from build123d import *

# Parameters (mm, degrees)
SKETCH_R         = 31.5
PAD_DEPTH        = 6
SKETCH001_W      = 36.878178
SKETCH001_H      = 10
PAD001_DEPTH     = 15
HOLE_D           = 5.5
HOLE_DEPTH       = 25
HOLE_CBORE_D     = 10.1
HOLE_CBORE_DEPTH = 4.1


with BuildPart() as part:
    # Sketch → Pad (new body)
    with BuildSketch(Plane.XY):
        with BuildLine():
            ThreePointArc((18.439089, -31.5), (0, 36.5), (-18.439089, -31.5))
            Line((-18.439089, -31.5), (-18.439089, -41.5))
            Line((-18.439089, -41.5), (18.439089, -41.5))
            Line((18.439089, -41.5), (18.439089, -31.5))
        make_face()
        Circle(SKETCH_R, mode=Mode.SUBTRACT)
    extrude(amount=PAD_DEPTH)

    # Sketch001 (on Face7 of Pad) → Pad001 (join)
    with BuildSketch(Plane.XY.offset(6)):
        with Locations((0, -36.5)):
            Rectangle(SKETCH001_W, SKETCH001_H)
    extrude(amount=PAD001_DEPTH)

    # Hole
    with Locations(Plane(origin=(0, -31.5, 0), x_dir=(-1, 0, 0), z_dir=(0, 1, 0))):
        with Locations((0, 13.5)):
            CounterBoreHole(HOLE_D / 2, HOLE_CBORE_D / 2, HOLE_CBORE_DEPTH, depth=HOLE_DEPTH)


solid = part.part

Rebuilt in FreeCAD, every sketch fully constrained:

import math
import FreeCAD as App
import Part
import Sketcher
from FreeCAD import Vector
Q = App.Units.Quantity

doc = App.newDocument("Part")
params = doc.addObject("Spreadsheet::Sheet", "Params")
for row, (alias, value) in enumerate([
    ("sketch1_diameter", "63 mm"),
    ("sketch1_radius", "36.5 mm"),
    ("sketch1_height", "10 mm"),
    ("pad1_length", "6 mm"),
    ("sketch2_height", "10 mm"),
    ("pad2_length", "15 mm"),
    ("sketch3_diameter", "5.5 mm"),
    ("hole_diameter", "5.5 mm"),
    ("hole_depth", "25 mm"),
    ("hole_cbore_diameter", "10.1 mm"),
    ("hole_cbore_depth", "4.1 mm"),
], start=1):
    params.set(f"A{row}", alias)
    params.set(f"B{row}", "=" + value)
    params.setAlias(f"B{row}", alias)

body = doc.addObject("PartDesign::Body", "Body")

# Sketch on XY plane
sketch1 = body.newObject("Sketcher::SketchObject", "Sketch")
sketch1.AttachmentSupport = (doc.getObject("XY_Plane"), [""])
sketch1.MapMode = "FlatFace"
sketch1.addGeometry([
    Part.ArcOfCircle(Part.Circle(Vector(0, 0, 0), Vector(0, 0, 1), 36.5), math.radians(-59.656664), math.radians(239.656664)),  # 0
    Part.LineSegment(Vector(-18.439089, -31.5, 0), Vector(-18.439089, -41.5, 0)),  # 1
    Part.LineSegment(Vector(-18.439089, -41.5, 0), Vector(18.439089, -41.5, 0)),  # 2
    Part.LineSegment(Vector(18.439089, -41.5, 0), Vector(18.439089, -31.5, 0)),  # 3
    Part.Circle(Vector(0, 0, 0), Vector(0, 0, 1), 31.5),  # 4
], False)
sketch1.addConstraint([
    Sketcher.Constraint("Coincident", 0, 2, 1, 1),
    Sketcher.Constraint("Coincident", 1, 2, 2, 1),
    Sketcher.Constraint("Coincident", 2, 2, 3, 1),
    Sketcher.Constraint("Coincident", 3, 2, 0, 1),
    Sketcher.Constraint("Vertical", 1),
    Sketcher.Constraint("Horizontal", 2),
    Sketcher.Constraint("Vertical", 3),
    Sketcher.Constraint("Coincident", 0, 3, -1, 1),
    Sketcher.Constraint("Coincident", 4, 3, -1, 1),
    Sketcher.Constraint("Horizontal", 0, 2, 3, 2),
    Sketcher.Constraint("Diameter", 4, Q("63 mm")),
    Sketcher.Constraint("Radius", 0, Q("36.5 mm")),
    Sketcher.Constraint("DistanceY", 1, 2, 1, 1, Q("10 mm")),
    Sketcher.Constraint("DistanceY", 0, 2, -1, 1, Q("31.5 mm")),
])
sketch1.setExpression("Constraints[10]", "Params.sketch1_diameter")
sketch1.setExpression("Constraints[11]", "Params.sketch1_radius")
sketch1.setExpression("Constraints[12]", "Params.sketch1_height")
pad1 = body.newObject("PartDesign::Pad", "Pad")
pad1.Profile = sketch1
pad1.setExpression("Length", "Params.pad1_length")

# Sketch on XY plane
sketch2 = body.newObject("Sketcher::SketchObject", "Sketch001")
sketch2.AttachmentSupport = (doc.getObject("XY_Plane"), [""])
sketch2.MapMode = "FlatFace"
sketch2.AttachmentOffset = App.Placement(Vector(0, 0, 6), App.Rotation())
sketch2.addGeometry([
    Part.LineSegment(Vector(-18.439089, -31.5, 0), Vector(-18.439089, -41.5, 0)),
    Part.LineSegment(Vector(-18.439089, -41.5, 0), Vector(18.439089, -41.5, 0)),
    Part.LineSegment(Vector(18.439089, -41.5, 0), Vector(18.439089, -31.5, 0)),
    Part.LineSegment(Vector(18.439089, -31.5, 0), Vector(-18.439089, -31.5, 0)),
], False)
sketch2.addConstraint([
    Sketcher.Constraint("Coincident", 0, 2, 1, 1),
    Sketcher.Constraint("Coincident", 1, 2, 2, 1),
    Sketcher.Constraint("Coincident", 2, 2, 3, 1),
    Sketcher.Constraint("Coincident", 3, 2, 0, 1),
    Sketcher.Constraint("Vertical", 0),
    Sketcher.Constraint("Horizontal", 1),
    Sketcher.Constraint("Vertical", 2),
    Sketcher.Constraint("Horizontal", 3),
    Sketcher.Constraint("DistanceY", 0, 2, 0, 1, Q("10 mm")),
    Sketcher.Constraint("DistanceY", 0, 2, -1, 1, Q("41.5 mm")),
    Sketcher.Constraint("DistanceX", 1, 1, 1, 2, Q("36.878178 mm")),
    Sketcher.Constraint("DistanceX", 0, 2, -1, 1, Q("18.439089 mm")),
])
sketch2.setExpression("Constraints[8]", "Params.sketch2_height")
pad2 = body.newObject("PartDesign::Pad", "Pad001")
pad2.Profile = sketch2
pad2.setExpression("Length", "Params.pad2_length")

# Sketch on XZ plane
sketch3 = body.newObject("Sketcher::SketchObject", "Sketch002")
sketch3.AttachmentSupport = (doc.getObject("XZ_Plane"), [""])
sketch3.MapMode = "FlatFace"
sketch3.AttachmentOffset = App.Placement(Vector(0, 0, 31.5), App.Rotation())
sketch3.addGeometry(Part.Circle(Vector(0, 13.5, 0), Vector(0, 0, 1), 2.75), False)
sketch3.addConstraint([
    Sketcher.Constraint("PointOnObject", 0, 3, -2),
    Sketcher.Constraint("Diameter", 0, Q("5.5 mm")),
    Sketcher.Constraint("DistanceY", -1, 1, 0, 3, Q("13.5 mm")),
])
sketch3.setExpression("Constraints[1]", "Params.sketch3_diameter")
doc.recompute()
hole = body.newObject("PartDesign::Hole", "Hole")
hole.Profile = sketch3
hole.ThreadType = "None"
hole.setExpression("Diameter", "Params.hole_diameter")
hole.DepthType = "Dimension"
hole.setExpression("Depth", "Params.hole_depth")
hole.DrillPoint = "Flat"
hole.HoleCutType = "Counterbore"
hole.setExpression("HoleCutDiameter", "Params.hole_cbore_diameter")
hole.setExpression("HoleCutDepth", "Params.hole_cbore_depth")
hole.Reversed = True

doc.recompute()
